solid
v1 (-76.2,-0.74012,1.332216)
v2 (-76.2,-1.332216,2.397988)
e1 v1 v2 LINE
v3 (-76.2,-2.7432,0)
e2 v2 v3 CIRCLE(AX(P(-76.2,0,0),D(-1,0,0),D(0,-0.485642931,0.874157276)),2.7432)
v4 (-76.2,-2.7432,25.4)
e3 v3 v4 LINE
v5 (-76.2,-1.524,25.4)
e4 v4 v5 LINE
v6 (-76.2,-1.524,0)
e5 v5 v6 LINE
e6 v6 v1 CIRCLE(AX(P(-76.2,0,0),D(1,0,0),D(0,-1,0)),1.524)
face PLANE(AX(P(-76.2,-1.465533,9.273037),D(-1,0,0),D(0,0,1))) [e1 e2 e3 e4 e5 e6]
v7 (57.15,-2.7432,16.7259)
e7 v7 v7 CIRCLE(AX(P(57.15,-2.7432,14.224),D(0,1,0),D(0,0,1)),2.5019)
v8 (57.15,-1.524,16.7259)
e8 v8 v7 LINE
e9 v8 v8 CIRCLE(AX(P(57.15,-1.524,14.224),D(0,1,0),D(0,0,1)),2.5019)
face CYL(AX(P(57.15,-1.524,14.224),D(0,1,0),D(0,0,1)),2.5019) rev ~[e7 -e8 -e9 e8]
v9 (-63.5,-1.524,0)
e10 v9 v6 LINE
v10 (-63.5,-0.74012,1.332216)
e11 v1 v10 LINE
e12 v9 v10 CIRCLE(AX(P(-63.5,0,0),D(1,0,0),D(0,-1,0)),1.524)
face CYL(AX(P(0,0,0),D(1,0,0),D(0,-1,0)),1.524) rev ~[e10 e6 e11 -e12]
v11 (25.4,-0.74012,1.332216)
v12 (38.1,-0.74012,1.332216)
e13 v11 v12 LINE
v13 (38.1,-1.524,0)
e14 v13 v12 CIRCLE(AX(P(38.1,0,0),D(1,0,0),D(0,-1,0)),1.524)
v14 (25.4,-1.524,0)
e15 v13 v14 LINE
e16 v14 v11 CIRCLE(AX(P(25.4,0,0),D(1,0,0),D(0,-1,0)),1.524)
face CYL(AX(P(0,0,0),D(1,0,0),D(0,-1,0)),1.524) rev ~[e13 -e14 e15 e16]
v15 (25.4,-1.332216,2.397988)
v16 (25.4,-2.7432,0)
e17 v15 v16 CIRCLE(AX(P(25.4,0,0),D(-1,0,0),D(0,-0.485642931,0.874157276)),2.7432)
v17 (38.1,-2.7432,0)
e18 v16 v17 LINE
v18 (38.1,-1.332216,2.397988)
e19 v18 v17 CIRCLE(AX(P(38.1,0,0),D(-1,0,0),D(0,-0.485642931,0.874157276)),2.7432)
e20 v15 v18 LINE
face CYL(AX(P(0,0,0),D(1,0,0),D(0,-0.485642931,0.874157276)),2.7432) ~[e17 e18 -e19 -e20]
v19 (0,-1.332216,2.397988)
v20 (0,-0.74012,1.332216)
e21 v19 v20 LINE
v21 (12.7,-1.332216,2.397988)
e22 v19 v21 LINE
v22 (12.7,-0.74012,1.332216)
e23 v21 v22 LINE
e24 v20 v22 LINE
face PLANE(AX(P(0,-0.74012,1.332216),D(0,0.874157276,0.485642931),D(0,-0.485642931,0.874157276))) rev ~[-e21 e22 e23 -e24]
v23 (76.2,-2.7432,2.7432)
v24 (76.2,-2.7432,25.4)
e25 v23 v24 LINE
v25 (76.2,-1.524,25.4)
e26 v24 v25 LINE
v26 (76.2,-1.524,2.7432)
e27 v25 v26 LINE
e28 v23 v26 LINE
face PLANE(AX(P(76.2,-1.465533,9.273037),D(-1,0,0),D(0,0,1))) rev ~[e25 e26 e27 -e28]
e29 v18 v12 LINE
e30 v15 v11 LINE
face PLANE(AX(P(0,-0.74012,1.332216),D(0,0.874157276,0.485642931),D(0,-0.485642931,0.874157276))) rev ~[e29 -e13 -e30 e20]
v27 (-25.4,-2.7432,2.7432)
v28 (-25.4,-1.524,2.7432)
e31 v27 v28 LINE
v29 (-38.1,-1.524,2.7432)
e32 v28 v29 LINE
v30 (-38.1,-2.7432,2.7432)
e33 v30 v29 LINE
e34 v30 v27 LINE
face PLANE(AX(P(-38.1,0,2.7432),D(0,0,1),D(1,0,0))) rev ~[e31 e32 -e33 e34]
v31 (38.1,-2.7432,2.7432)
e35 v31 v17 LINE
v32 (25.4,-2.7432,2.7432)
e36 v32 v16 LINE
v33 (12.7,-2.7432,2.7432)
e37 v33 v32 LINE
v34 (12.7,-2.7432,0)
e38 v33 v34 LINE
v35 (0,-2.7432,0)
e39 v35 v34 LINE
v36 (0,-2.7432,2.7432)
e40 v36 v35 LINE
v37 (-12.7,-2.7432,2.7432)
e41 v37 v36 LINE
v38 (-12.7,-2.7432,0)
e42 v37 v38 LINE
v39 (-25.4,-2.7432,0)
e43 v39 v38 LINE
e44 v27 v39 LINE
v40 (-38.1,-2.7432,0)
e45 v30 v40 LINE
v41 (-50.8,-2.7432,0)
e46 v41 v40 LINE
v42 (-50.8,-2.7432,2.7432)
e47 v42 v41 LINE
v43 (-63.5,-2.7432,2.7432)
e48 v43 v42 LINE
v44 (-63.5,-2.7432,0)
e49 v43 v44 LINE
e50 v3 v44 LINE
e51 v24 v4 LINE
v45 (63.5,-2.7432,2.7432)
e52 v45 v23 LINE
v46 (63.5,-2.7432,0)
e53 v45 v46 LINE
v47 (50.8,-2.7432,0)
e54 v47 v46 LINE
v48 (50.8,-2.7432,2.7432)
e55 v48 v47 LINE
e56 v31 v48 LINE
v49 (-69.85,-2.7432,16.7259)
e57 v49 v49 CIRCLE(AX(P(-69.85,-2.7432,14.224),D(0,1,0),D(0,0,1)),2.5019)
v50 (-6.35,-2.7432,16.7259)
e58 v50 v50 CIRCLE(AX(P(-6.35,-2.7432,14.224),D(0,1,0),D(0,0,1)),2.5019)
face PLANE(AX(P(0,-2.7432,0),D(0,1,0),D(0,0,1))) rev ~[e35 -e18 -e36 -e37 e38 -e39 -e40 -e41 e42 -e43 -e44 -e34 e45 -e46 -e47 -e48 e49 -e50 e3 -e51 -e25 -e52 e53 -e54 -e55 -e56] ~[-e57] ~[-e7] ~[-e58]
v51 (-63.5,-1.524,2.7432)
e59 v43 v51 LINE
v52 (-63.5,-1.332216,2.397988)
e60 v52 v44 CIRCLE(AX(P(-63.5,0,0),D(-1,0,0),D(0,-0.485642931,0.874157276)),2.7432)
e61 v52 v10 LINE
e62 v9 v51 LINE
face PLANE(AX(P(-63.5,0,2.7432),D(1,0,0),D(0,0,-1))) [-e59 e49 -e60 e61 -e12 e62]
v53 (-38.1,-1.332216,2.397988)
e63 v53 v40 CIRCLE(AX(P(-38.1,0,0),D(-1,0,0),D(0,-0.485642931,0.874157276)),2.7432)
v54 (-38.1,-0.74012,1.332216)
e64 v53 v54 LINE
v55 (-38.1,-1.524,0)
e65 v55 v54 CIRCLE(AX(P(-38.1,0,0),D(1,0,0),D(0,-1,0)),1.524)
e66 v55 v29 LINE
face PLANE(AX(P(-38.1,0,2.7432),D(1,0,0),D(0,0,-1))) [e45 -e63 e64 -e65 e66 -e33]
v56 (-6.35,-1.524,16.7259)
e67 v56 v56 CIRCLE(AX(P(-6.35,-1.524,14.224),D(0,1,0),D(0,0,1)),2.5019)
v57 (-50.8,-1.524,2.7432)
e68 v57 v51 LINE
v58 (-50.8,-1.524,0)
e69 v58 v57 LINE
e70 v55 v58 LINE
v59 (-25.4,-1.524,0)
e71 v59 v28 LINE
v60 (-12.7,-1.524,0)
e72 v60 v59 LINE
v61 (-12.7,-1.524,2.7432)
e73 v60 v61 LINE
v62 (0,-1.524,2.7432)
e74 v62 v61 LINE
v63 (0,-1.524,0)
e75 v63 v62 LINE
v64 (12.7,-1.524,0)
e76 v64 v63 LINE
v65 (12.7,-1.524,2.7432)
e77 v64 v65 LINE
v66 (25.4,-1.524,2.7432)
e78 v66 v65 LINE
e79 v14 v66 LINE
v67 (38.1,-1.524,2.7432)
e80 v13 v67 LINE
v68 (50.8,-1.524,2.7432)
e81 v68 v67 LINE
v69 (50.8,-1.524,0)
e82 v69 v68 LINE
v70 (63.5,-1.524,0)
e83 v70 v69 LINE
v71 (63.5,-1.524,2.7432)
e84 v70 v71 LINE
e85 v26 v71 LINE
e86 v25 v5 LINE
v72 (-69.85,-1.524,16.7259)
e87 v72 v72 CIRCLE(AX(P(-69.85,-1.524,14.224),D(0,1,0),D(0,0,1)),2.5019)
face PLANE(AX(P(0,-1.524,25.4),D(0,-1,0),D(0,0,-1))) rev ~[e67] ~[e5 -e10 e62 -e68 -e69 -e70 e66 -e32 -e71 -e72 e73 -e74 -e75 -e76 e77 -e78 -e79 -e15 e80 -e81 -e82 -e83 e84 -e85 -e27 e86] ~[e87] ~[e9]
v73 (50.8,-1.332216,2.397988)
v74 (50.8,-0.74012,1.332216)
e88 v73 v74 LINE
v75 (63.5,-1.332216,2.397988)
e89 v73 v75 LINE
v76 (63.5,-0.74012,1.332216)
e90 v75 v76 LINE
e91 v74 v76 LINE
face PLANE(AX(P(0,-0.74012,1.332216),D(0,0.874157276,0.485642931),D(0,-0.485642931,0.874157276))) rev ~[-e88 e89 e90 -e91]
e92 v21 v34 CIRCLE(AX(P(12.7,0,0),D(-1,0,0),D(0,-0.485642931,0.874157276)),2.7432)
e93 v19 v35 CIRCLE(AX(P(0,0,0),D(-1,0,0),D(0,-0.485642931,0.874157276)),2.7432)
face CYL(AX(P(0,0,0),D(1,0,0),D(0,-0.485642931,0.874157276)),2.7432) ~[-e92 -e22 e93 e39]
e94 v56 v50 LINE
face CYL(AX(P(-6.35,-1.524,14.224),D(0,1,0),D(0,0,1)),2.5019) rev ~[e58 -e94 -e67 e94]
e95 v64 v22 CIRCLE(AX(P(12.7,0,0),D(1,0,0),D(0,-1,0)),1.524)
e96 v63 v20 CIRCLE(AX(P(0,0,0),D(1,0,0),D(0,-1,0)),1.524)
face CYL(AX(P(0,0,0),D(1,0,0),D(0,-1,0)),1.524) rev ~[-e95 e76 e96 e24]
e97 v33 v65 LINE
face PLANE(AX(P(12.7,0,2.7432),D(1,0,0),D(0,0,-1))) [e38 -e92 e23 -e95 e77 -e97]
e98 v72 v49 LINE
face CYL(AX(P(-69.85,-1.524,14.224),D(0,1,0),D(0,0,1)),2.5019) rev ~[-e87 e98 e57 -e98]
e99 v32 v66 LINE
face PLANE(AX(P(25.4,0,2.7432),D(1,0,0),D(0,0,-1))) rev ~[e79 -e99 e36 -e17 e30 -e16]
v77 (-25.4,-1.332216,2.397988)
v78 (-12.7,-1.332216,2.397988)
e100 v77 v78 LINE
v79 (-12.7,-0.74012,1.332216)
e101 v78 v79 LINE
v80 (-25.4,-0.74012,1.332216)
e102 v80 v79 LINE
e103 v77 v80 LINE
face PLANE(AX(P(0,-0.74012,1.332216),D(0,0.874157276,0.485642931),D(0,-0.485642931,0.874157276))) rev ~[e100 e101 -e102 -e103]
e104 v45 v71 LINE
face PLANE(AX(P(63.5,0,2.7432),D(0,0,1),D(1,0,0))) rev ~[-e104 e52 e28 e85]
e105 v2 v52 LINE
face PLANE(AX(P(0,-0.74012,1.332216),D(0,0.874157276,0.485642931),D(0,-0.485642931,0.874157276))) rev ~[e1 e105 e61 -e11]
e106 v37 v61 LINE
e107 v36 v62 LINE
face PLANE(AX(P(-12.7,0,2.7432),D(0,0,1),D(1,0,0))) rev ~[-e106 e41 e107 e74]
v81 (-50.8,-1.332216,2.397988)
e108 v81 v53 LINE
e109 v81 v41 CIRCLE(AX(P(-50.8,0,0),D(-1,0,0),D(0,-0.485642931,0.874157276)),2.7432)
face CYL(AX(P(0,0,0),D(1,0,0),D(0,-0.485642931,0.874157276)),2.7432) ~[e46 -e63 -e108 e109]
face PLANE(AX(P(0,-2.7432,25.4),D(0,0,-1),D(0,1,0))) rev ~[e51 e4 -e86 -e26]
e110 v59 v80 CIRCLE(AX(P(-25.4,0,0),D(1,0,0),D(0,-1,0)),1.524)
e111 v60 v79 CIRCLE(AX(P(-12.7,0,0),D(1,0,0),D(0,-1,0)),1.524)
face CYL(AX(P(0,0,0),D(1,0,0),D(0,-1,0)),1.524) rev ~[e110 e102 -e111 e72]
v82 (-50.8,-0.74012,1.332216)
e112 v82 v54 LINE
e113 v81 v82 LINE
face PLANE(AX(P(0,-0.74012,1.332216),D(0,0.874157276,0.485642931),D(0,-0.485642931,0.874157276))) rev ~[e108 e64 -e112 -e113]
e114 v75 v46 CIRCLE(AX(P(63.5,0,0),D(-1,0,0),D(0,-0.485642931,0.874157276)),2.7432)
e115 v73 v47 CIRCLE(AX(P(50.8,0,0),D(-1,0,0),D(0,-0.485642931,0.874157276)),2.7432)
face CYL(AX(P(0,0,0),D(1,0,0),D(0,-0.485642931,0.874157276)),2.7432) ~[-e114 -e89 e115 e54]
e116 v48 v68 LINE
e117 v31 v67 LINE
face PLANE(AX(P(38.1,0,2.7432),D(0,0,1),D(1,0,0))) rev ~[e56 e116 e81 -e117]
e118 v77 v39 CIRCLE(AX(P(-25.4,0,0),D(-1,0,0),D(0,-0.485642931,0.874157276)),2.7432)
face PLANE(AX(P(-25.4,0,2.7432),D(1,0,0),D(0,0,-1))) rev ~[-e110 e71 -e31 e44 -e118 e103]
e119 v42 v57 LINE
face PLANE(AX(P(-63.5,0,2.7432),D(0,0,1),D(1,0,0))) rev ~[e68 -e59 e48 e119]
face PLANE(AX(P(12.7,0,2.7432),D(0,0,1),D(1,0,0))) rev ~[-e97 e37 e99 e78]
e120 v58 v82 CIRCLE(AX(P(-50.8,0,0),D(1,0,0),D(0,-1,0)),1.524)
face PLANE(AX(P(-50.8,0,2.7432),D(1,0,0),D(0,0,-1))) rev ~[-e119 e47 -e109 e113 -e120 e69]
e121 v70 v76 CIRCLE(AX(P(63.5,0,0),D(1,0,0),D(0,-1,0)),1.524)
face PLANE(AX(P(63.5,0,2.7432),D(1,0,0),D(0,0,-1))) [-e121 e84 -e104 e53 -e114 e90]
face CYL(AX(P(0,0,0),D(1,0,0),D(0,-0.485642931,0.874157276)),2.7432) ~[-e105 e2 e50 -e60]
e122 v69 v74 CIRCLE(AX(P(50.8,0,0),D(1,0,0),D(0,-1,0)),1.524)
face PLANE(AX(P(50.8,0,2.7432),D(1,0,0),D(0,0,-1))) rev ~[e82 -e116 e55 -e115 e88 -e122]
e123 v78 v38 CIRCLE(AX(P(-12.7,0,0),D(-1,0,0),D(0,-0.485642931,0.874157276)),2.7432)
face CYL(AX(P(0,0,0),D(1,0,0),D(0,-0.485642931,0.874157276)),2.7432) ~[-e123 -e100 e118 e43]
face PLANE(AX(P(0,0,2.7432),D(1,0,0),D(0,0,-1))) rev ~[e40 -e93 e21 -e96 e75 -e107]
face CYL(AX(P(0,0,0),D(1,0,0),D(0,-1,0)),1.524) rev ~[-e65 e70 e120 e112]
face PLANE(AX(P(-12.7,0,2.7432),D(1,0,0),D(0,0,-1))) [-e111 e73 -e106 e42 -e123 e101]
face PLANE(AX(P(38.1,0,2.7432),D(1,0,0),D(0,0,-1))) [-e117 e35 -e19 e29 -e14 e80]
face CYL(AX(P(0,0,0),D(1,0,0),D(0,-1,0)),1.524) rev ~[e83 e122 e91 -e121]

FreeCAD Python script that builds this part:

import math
import FreeCAD as App
import Part
import Sketcher

V = App.Vector
Q = App.Units.Quantity

doc = App.newDocument("Part")
body = doc.addObject("PartDesign::Body", "Body")

sketch1 = doc.addObject("Sketcher::SketchObject", "Sketch")
body.addObject(sketch1)
sketch1.AttachmentSupport = (doc.YZ_Plane, [""])
sketch1.MapMode = "FlatFace"
sketch1.addGeometry([
    Part.LineSegment(V(-2.7, 25.4, 0), V(-2.7, 0, 0)),
    Part.ArcOfCircle(Part.Circle(V(0, 0, 0), V(0, 0, 1), 2.7), math.radians(180), math.radians(479)),
    Part.LineSegment(V(-1.3, 2.4, 0), V(-0.7, 1.3, 0)),
    Part.ArcOfCircle(Part.Circle(V(0, 0, 0), V(0, 0, 1), 1.5), math.radians(180), math.radians(479)),
    Part.LineSegment(V(-1.5, 0, 0), V(-1.5, 25.4, 0)),
    Part.LineSegment(V(-1.5, 25.4, 0), V(-2.7, 25.4, 0)),
], False)
sketch1.addConstraint([
    Sketcher.Constraint("Tangent", 0, 2, 1, 1),
    Sketcher.Constraint("Coincident", 1, 2, 2, 1),
    Sketcher.Constraint("Coincident", 2, 2, 3, 2),
    Sketcher.Constraint("Tangent", 3, 1, 4, 1),
    Sketcher.Constraint("Coincident", 4, 2, 5, 1),
    Sketcher.Constraint("Coincident", 5, 2, 0, 1),
    Sketcher.Constraint("Vertical", 0),
    Sketcher.Constraint("Vertical", 4),
    Sketcher.Constraint("Horizontal", 5),
    Sketcher.Constraint("Coincident", 1, 3, -1, 1),
    Sketcher.Constraint("Coincident", 3, 3, -1, 1),
    Sketcher.Constraint("DistanceY", 0, 2, 0, 1, Q("1 in")),
    Sketcher.Constraint("Radius", 3, Q("0.06 in")),
    Sketcher.Constraint("Radius", 1, Q("0.108 in")),
    Sketcher.Constraint("DistanceY", -1, 1, 1, 2, 2.397988),
    Sketcher.Constraint("DistanceX", 2, 2, -1, 1, 0.74012),
])
pad1 = doc.addObject("PartDesign::Pad", "Pad")
body.addObject(pad1)
pad1.Profile = sketch1
pad1.Length = Q("6 in")
pad1.Midplane = True

sketch2 = doc.addObject("Sketcher::SketchObject", "Sketch001")
body.addObject(sketch2)
sketch2.AttachmentSupport = (doc.XZ_Plane, [""])
sketch2.MapMode = "FlatFace"
sketch2.addGeometry([
    Part.LineSegment(V(-64, -3, 0), V(-64, 3, 0)),
    Part.LineSegment(V(-64, 3, 0), V(-51, 3, 0)),
    Part.LineSegment(V(-51, 3, 0), V(-51, -3, 0)),
    Part.LineSegment(V(-51, -3, 0), V(-64, -3, 0)),
], False)
sketch2.addConstraint([
    Sketcher.Constraint("Coincident", 0, 2, 1, 1),
    Sketcher.Constraint("Coincident", 1, 2, 2, 1),
    Sketcher.Constraint("Coincident", 2, 2, 3, 1),
    Sketcher.Constraint("Coincident", 3, 2, 0, 1),
    Sketcher.Constraint("Vertical", 0),
    Sketcher.Constraint("Horizontal", 1),
    Sketcher.Constraint("Vertical", 2),
    Sketcher.Constraint("Horizontal", 3),
    Sketcher.Constraint("DistanceX", 1, 1, 1, 2, Q("0.5 in")),
    Sketcher.Constraint("DistanceX", 1, 2, -1, 1, Q("2 in")),
    Sketcher.Constraint("DistanceY", 0, 1, 0, 2, Q("0.216 in")),
    Sketcher.Constraint("DistanceY", -1, 1, 0, 2, Q("0.108 in")),
])
pocket1 = doc.addObject("PartDesign::Pocket", "Pocket")
body.addObject(pocket1)
pocket1.Profile = sketch2
pocket1.Length = 162.737365
pocket1.Midplane = True
doc.recompute()

linearpattern = doc.addObject("PartDesign::LinearPattern", "LinearPattern")
body.addObject(linearpattern)
linearpattern.Originals = [pocket1]
linearpattern.Direction = (doc.X_Axis, [""])
linearpattern.Mode = "offset"
linearpattern.Offset = Q("1 in")
linearpattern.Occurrences = 6
body.Tip = linearpattern

sketch3 = doc.addObject("Sketcher::SketchObject", "Sketch002")
body.addObject(sketch3)
sketch3.AttachmentSupport = (doc.XZ_Plane, [""])
sketch3.MapMode = "FlatFace"
sketch3.AttachmentOffset = App.Placement(V(0, 0, 0.06 * 25.4), App.Rotation())
sketch3.addGeometry([
    Part.Circle(V(57.1, 14.2, 0), V(0, 0, 1), 2.5),
    Part.Circle(V(-6.3, 14.2, 0), V(0, 0, 1), 2.5),
    Part.Circle(V(-69.8, 14.2, 0), V(0, 0, 1), 2.5),
], False)
sketch3.addConstraint([
    Sketcher.Constraint("Equal", 0, 1),
    Sketcher.Constraint("Equal", 1, 2),
    Sketcher.Constraint("Horizontal", 0, 3, 1, 3),
    Sketcher.Constraint("Horizontal", 1, 3, 2, 3),
    Sketcher.Constraint("Diameter", 0, Q("0.197 in")),
    Sketcher.Constraint("DistanceX", 2, 3, 0, 3, Q("5 in")),
    Sketcher.Constraint("DistanceX", 1, 3, 0, 3, Q("2.5 in")),
    Sketcher.Constraint("DistanceX", -1, 1, 0, 3, Q("2.25 in")),
    Sketcher.Constraint("DistanceY", -1, 1, 0, 3, Q("0.56 in")),
])
pocket2 = doc.addObject("PartDesign::Pocket", "Pocket001")
body.addObject(pocket2)
pocket2.Profile = sketch3
pocket2.Type = "ThroughAll"
pocket2.Reversed = True

doc.recompute()
